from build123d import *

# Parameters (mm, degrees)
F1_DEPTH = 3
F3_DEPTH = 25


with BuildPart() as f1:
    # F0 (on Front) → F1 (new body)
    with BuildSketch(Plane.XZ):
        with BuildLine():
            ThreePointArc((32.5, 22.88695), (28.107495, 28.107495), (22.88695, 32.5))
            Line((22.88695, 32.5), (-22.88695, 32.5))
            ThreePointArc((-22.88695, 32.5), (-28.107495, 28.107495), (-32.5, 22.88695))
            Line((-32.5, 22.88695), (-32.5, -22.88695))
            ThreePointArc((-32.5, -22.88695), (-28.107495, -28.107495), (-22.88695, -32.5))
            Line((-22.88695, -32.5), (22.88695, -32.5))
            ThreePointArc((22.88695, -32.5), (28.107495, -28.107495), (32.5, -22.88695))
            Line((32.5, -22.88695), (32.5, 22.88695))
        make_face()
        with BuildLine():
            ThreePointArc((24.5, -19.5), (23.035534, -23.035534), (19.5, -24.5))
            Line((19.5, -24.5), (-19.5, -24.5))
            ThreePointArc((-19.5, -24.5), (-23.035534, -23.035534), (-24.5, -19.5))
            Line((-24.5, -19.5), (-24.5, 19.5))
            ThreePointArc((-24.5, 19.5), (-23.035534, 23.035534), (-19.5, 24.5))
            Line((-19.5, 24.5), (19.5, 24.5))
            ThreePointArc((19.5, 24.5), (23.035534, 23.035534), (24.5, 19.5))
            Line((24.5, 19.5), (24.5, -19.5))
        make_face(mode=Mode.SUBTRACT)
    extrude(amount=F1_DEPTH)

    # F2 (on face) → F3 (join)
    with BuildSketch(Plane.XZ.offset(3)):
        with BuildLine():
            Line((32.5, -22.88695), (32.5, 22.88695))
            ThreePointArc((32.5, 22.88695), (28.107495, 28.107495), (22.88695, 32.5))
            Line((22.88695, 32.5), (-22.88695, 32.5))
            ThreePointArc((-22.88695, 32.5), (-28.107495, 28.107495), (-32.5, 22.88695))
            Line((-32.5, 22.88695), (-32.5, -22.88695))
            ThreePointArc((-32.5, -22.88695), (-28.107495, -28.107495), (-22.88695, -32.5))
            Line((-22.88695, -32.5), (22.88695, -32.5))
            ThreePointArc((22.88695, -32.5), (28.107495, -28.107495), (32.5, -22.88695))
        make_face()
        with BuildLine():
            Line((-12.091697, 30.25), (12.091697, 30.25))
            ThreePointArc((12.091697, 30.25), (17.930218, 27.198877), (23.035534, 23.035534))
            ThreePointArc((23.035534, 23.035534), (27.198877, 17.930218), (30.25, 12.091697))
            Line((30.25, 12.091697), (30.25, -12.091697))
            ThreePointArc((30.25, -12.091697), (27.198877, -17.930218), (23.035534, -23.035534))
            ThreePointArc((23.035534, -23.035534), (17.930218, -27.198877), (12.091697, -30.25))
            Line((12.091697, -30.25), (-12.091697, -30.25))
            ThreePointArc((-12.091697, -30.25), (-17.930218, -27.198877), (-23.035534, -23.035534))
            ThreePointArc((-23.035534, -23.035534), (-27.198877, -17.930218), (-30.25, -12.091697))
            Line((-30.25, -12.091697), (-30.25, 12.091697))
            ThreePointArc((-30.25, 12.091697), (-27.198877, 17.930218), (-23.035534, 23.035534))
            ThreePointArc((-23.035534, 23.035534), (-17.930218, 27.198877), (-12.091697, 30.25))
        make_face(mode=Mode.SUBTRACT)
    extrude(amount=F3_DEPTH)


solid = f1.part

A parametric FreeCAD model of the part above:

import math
import FreeCAD as App
import Part
import Sketcher
from FreeCAD import Vector
Q = App.Units.Quantity

doc = App.newDocument("Part")
body = doc.addObject("PartDesign::Body", "Body")

# Sketch on XZ plane
sketch1 = body.newObject("Sketcher::SketchObject", "Sketch")
sketch1.AttachmentSupport = (doc.getObject("XZ_Plane"), [""])
sketch1.MapMode = "FlatFace"
sketch1.addGeometry(Part.ArcOfCircle(Part.Circle(Vector(0.000042, 0.000042, 0), Vector(0, 0, 1), 39.749941), math.radians(35.153722), math.radians(54.846278)), False)
sketch1.addGeometry(Part.LineSegment(Vector(22.88695, 32.5, 0), Vector(-22.88695, 32.5, 0)), False)
sketch1.addGeometry(Part.ArcOfCircle(Part.Circle(Vector(-0.000042, 0.000042, 0), Vector(0, 0, 1), 39.749941), math.radians(125.153722), math.radians(144.846278)), False)
sketch1.addGeometry(Part.LineSegment(Vector(-32.5, 22.88695, 0), Vector(-32.5, -22.88695, 0)), False)
sketch1.addGeometry(Part.ArcOfCircle(Part.Circle(Vector(-0.000042, -0.000042, 0), Vector(0, 0, 1), 39.749941), math.radians(-144.846278), math.radians(-125.153722)), False)
sketch1.addGeometry(Part.LineSegment(Vector(-22.88695, -32.5, 0), Vector(22.88695, -32.5, 0)), False)
sketch1.addGeometry(Part.ArcOfCircle(Part.Circle(Vector(0.000042, -0.000042, 0), Vector(0, 0, 1), 39.749941), math.radians(-54.846278), math.radians(-35.153722)), False)
sketch1.addGeometry(Part.LineSegment(Vector(32.5, -22.88695, 0), Vector(32.5, 22.88695, 0)), False)
sketch1.addGeometry(Part.LineSegment(Vector(24.5, 19.5, 0), Vector(24.5, -19.5, 0)), False)
sketch1.addGeometry(Part.ArcOfCircle(Part.Circle(Vector(19.5, -19.5, 0), Vector(0, 0, 1), 5), math.radians(-90.000004), math.radians(0.000004)), False)
sketch1.addGeometry(Part.LineSegment(Vector(19.5, -24.5, 0), Vector(-19.5, -24.5, 0)), False)
sketch1.addGeometry(Part.ArcOfCircle(Part.Circle(Vector(-19.5, -19.5, 0), Vector(0, 0, 1), 5), math.radians(179.999996), math.radians(270.000004)), False)
sketch1.addGeometry(Part.LineSegment(Vector(-24.5, -19.5, 0), Vector(-24.5, 19.5, 0)), False)
sketch1.addGeometry(Part.ArcOfCircle(Part.Circle(Vector(-19.5, 19.5, 0), Vector(0, 0, 1), 5), math.radians(89.999996), math.radians(180.000004)), False)
sketch1.addGeometry(Part.LineSegment(Vector(-19.5, 24.5, 0), Vector(19.5, 24.5, 0)), False)
sketch1.addGeometry(Part.ArcOfCircle(Part.Circle(Vector(19.5, 19.5, 0), Vector(0, 0, 1), 5), math.radians(-0.000004), math.radians(90.000004)), False)
sketch1.addConstraint(Sketcher.Constraint("Coincident", 0, 2, 1, 1))
sketch1.addConstraint(Sketcher.Constraint("Coincident", 1, 2, 2, 1))
sketch1.addConstraint(Sketcher.Constraint("Coincident", 2, 2, 3, 1))
sketch1.addConstraint(Sketcher.Constraint("Coincident", 3, 2, 4, 1))
sketch1.addConstraint(Sketcher.Constraint("Coincident", 4, 2, 5, 1))
sketch1.addConstraint(Sketcher.Constraint("Coincident", 5, 2, 6, 1))
sketch1.addConstraint(Sketcher.Constraint("Coincident", 6, 2, 7, 1))
sketch1.addConstraint(Sketcher.Constraint("Coincident", 7, 2, 0, 1))
sketch1.addConstraint(Sketcher.Constraint("Tangent", 8, 2, 9, 2))
sketch1.addConstraint(Sketcher.Constraint("Tangent", 9, 1, 10, 1))
sketch1.addConstraint(Sketcher.Constraint("Tangent", 10, 2, 11, 2))
sketch1.addConstraint(Sketcher.Constraint("Tangent", 11, 1, 12, 1))
sketch1.addConstraint(Sketcher.Constraint("Tangent", 12, 2, 13, 2))
sketch1.addConstraint(Sketcher.Constraint("Tangent", 13, 1, 14, 1))
sketch1.addConstraint(Sketcher.Constraint("Tangent", 14, 2, 15, 2))
sketch1.addConstraint(Sketcher.Constraint("Tangent", 15, 1, 8, 1))
sketch1.addConstraint(Sketcher.Constraint("Horizontal", 1))
sketch1.addConstraint(Sketcher.Constraint("Vertical", 3))
sketch1.addConstraint(Sketcher.Constraint("Horizontal", 5))
sketch1.addConstraint(Sketcher.Constraint("Vertical", 7))
sketch1.addConstraint(Sketcher.Constraint("Vertical", 8))
sketch1.addConstraint(Sketcher.Constraint("Horizontal", 10))
sketch1.addConstraint(Sketcher.Constraint("Vertical", 12))
sketch1.addConstraint(Sketcher.Constraint("Horizontal", 14))
sketch1.addConstraint(Sketcher.Constraint("Equal", 0, 2))
sketch1.addConstraint(Sketcher.Constraint("Equal", 2, 4))
sketch1.addConstraint(Sketcher.Constraint("Equal", 4, 6))
sketch1.addConstraint(Sketcher.Constraint("Equal", 9, 11))
sketch1.addConstraint(Sketcher.Constraint("Equal", 11, 13))
sketch1.addConstraint(Sketcher.Constraint("Equal", 13, 15))
sketch1.addConstraint(Sketcher.Constraint("Symmetric", 0, 3, 4, 3, -1, 1))
sketch1.addConstraint(Sketcher.Constraint("Symmetric", 2, 3, 6, 3, -1, 1))
sketch1.addConstraint(Sketcher.Constraint("Symmetric", 9, 3, 13, 3, -1, 1))
sketch1.addConstraint(Sketcher.Constraint("Symmetric", 0, 3, 2, 3, -2))
sketch1.addConstraint(Sketcher.Constraint("Horizontal", 3, 2, 6, 2))
sketch1.addConstraint(Sketcher.Constraint("Vertical", 1, 2, 4, 2))
sketch1.addConstraint(Sketcher.Constraint("Equal", 5, 3))
sketch1.addConstraint(Sketcher.Constraint("Equal", 14, 8))
sketch1.addConstraint(Sketcher.Constraint("Radius", 9, Q("5 mm")))
sketch1.addConstraint(Sketcher.Constraint("DistanceX", 10, 2, 10, 1, Q("39 mm")))
sketch1.addConstraint(Sketcher.Constraint("DistanceY", 15, 3, 0, 2, Q("13 mm")))
sketch1.addConstraint(Sketcher.Constraint("DistanceX", 2, 2, 13, 3, Q("13 mm")))
sketch1.addConstraint(Sketcher.Constraint("Radius", 0, Q("39.749941 mm")))
sketch1.addConstraint(Sketcher.Constraint("DistanceX", 1, 2, 1, 1, Q("45.7739 mm")))
pad1 = body.newObject("PartDesign::Pad", "Pad")
pad1.Profile = sketch1
pad1.Length = 3

# Sketch on XZ plane
sketch2 = body.newObject("Sketcher::SketchObject", "Sketch001")
sketch2.AttachmentSupport = (doc.getObject("XZ_Plane"), [""])
sketch2.MapMode = "FlatFace"
sketch2.AttachmentOffset = App.Placement(Vector(0, 0, 3), App.Rotation())
sketch2.addGeometry(Part.LineSegment(Vector(32, -23, 0), Vector(32, 23, 0)), False)
sketch2.addGeometry(Part.ArcOfCircle(Part.Circle(Vector(0, 0, 0), Vector(0, 0, 1), 40), math.radians(35.15), math.radians(54.85)), False)
sketch2.addGeometry(Part.LineSegment(Vector(23, 32, 0), Vector(-23, 32, 0)), False)
sketch2.addGeometry(Part.ArcOfCircle(Part.Circle(Vector(0, 0, 0), Vector(0, 0, 1), 40), math.radians(125.15), math.radians(144.85)), False)
sketch2.addGeometry(Part.LineSegment(Vector(-32, 23, 0), Vector(-32, -23, 0)), False)
sketch2.addGeometry(Part.ArcOfCircle(Part.Circle(Vector(0, 0, 0), Vector(0, 0, 1), 40), math.radians(-144.85), math.radians(-125.15)), False)
sketch2.addGeometry(Part.LineSegment(Vector(-23, -32, 0), Vector(23, -32, 0)), False)
sketch2.addGeometry(Part.ArcOfCircle(Part.Circle(Vector(0, 0, 0), Vector(0, 0, 1), 40), math.radians(-54.85), math.radians(-35.15)), False)
sketch2.addGeometry(Part.ArcOfCircle(Part.Circle(Vector(0, 0, 0), Vector(0, 0, 1), 33), math.radians(112), math.radians(135)), False)
sketch2.addGeometry(Part.LineSegment(Vector(-12, 30, 0), Vector(12, 30, 0)), False)
sketch2.addGeometry(Part.ArcOfCircle(Part.Circle(Vector(0, 0, 0), Vector(0, 0, 1), 33), math.radians(45), math.radians(68)), False)
sketch2.addGeometry(Part.ArcOfCircle(Part.Circle(Vector(0, 0, 0), Vector(0, 0, 1), 33), math.radians(22), math.radians(45)), False)
sketch2.addGeometry(Part.LineSegment(Vector(30, 12, 0), Vector(30, -12, 0)), False)
sketch2.addGeometry(Part.ArcOfCircle(Part.Circle(Vector(0, 0, 0), Vector(0, 0, 1), 33), math.radians(-45), math.radians(-22)), False)
sketch2.addGeometry(Part.ArcOfCircle(Part.Circle(Vector(0, 0, 0), Vector(0, 0, 1), 33), math.radians(-68), math.radians(-45)), False)
sketch2.addGeometry(Part.LineSegment(Vector(12, -30, 0), Vector(-12, -30, 0)), False)
sketch2.addGeometry(Part.ArcOfCircle(Part.Circle(Vector(0, 0, 0), Vector(0, 0, 1), 33), math.radians(-135), math.radians(-112)), False)
sketch2.addGeometry(Part.ArcOfCircle(Part.Circle(Vector(0, 0, 0), Vector(0, 0, 1), 33), math.radians(-158), math.radians(-135)), False)
sketch2.addGeometry(Part.LineSegment(Vector(-30, -12, 0), Vector(-30, 12, 0)), False)
sketch2.addGeometry(Part.ArcOfCircle(Part.Circle(Vector(0, 0, 0), Vector(0, 0, 1), 33), math.radians(135), math.radians(158)), False)
sketch2.addConstraint(Sketcher.Constraint("Coincident", 0, 2, 1, 1))
sketch2.addConstraint(Sketcher.Constraint("Coincident", 1, 2, 2, 1))
sketch2.addConstraint(Sketcher.Constraint("Coincident", 2, 2, 3, 1))
sketch2.addConstraint(Sketcher.Constraint("Coincident", 3, 2, 4, 1))
sketch2.addConstraint(Sketcher.Constraint("Coincident", 4, 2, 5, 1))
sketch2.addConstraint(Sketcher.Constraint("Coincident", 5, 2, 6, 1))
sketch2.addConstraint(Sketcher.Constraint("Coincident", 6, 2, 7, 1))
sketch2.addConstraint(Sketcher.Constraint("Coincident", 7, 2, 0, 1))
sketch2.addConstraint(Sketcher.Constraint("Coincident", 8, 1, 9, 1))
sketch2.addConstraint(Sketcher.Constraint("Coincident", 9, 2, 10, 2))
sketch2.addConstraint(Sketcher.Constraint("Tangent", 10, 1, 11, 2))
sketch2.addConstraint(Sketcher.Constraint("Coincident", 11, 1, 12, 1))
sketch2.addConstraint(Sketcher.Constraint("Coincident", 12, 2, 13, 2))
sketch2.addConstraint(Sketcher.Constraint("Tangent", 13, 1, 14, 2))
sketch2.addConstraint(Sketcher.Constraint("Coincident", 14, 1, 15, 1))
sketch2.addConstraint(Sketcher.Constraint("Coincident", 15, 2, 16, 2))
sketch2.addConstraint(Sketcher.Constraint("Tangent", 16, 1, 17, 2))
sketch2.addConstraint(Sketcher.Constraint("Coincident", 17, 1, 18, 1))
sketch2.addConstraint(Sketcher.Constraint("Coincident", 18, 2, 19, 2))
sketch2.addConstraint(Sketcher.Constraint("Tangent", 19, 1, 8, 2))
sketch2.addConstraint(Sketcher.Constraint("Vertical", 0))
sketch2.addConstraint(Sketcher.Constraint("Horizontal", 2))
sketch2.addConstraint(Sketcher.Constraint("Vertical", 4))
sketch2.addConstraint(Sketcher.Constraint("Horizontal", 6))
sketch2.addConstraint(Sketcher.Constraint("Horizontal", 9))
sketch2.addConstraint(Sketcher.Constraint("Vertical", 12))
sketch2.addConstraint(Sketcher.Constraint("Horizontal", 15))
sketch2.addConstraint(Sketcher.Constraint("Vertical", 18))
sketch2.addConstraint(Sketcher.Constraint("Equal", 1, 3))
sketch2.addConstraint(Sketcher.Constraint("Equal", 3, 5))
sketch2.addConstraint(Sketcher.Constraint("Equal", 5, 7))
sketch2.addConstraint(Sketcher.Constraint("Equal", 8, 10))
sketch2.addConstraint(Sketcher.Constraint("Equal", 10, 11))
sketch2.addConstraint(Sketcher.Constraint("Equal", 11, 13))
sketch2.addConstraint(Sketcher.Constraint("Equal", 13, 14))
sketch2.addConstraint(Sketcher.Constraint("Equal", 14, 16))
sketch2.addConstraint(Sketcher.Constraint("Equal", 16, 17))
sketch2.addConstraint(Sketcher.Constraint("Equal", 17, 19))
sketch2.addConstraint(Sketcher.Constraint("Symmetric", 1, 3, 5, 3, -1, 1))
sketch2.addConstraint(Sketcher.Constraint("Symmetric", 3, 3, 7, 3, -1, 1))
sketch2.addConstraint(Sketcher.Constraint("Symmetric", 8, 3, 13, 3, -1, 1))
sketch2.addConstraint(Sketcher.Constraint("Symmetric", 10, 3, 16, 3, -1, 1))
sketch2.addConstraint(Sketcher.Constraint("Symmetric", 1, 3, 3, 3, -2))
sketch2.addConstraint(Sketcher.Constraint("Symmetric", 8, 3, 10, 3, -2))
sketch2.addConstraint(Sketcher.Constraint("Horizontal", 0, 2, 3, 2))
sketch2.addConstraint(Sketcher.Constraint("Horizontal", 13, 1, 16, 1))
sketch2.addConstraint(Sketcher.Constraint("Horizontal", 12, 2, 17, 1))
sketch2.addConstraint(Sketcher.Constraint("Horizontal", 10, 1, 19, 1))
sketch2.addConstraint(Sketcher.Constraint("Vertical", 2, 2, 5, 2))
sketch2.addConstraint(Sketcher.Constraint("Vertical", 10, 1, 13, 1))
sketch2.addConstraint(Sketcher.Constraint("Vertical", 9, 2, 14, 1))
sketch2.addConstraint(Sketcher.Constraint("Equal", 6, 0))
sketch2.addConstraint(Sketcher.Constraint("Equal", 15, 12))
sketch2.addConstraint(Sketcher.Constraint("DistanceX", -1, 1, 0, 2, Q("32.5 mm")))
sketch2.addConstraint(Sketcher.Constraint("DistanceY", -1, 1, 1, 2, Q("32.5 mm")))
sketch2.addConstraint(Sketcher.Constraint("DistanceY", -1, 1, 8, 1, Q("30.25 mm")))
sketch2.addConstraint(Sketcher.Constraint("DistanceX", -1, 1, 11, 1, Q("30.25 mm")))
sketch2.addConstraint(Sketcher.Constraint("Radius", 1, Q("39.749941 mm")))
sketch2.addConstraint(Sketcher.Constraint("DistanceX", 2, 2, 2, 1, Q("45.7739 mm")))
sketch2.addConstraint(Sketcher.Constraint("Radius", 8, Q("32.577177 mm")))
sketch2.addConstraint(Sketcher.Constraint("DistanceX", 9, 1, 9, 2, Q("24.183394 mm")))
sketch2.addConstraint(Sketcher.Constraint("DistanceX", 1, 3, 10, 1, Q("23.035492 mm")))
pad2 = body.newObject("PartDesign::Pad", "Pad001")
pad2.Profile = sketch2
pad2.Length = 25

doc.recompute()
